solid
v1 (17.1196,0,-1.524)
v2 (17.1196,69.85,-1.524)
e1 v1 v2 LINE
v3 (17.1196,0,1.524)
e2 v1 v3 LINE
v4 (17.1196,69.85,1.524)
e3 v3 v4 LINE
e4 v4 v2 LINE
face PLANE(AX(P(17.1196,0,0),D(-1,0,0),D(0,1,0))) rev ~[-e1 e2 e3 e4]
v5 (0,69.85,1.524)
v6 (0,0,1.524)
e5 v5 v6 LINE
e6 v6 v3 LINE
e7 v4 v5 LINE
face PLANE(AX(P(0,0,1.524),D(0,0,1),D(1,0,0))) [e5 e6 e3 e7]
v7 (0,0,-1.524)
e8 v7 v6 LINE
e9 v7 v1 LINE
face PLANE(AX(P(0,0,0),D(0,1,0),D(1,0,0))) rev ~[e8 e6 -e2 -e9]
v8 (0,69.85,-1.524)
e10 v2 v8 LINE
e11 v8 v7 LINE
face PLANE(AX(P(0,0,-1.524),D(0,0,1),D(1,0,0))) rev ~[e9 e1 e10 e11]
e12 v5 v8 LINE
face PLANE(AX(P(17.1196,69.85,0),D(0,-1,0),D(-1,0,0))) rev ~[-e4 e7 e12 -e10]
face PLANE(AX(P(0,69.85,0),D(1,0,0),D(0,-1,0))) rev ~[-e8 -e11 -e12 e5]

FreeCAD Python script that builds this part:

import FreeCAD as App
import Part
import Sketcher

V = App.Vector
Q = App.Units.Quantity

doc = App.newDocument("Part")
params = doc.addObject("Spreadsheet::Sheet", "Params")
for row, (alias, value) in enumerate([
    ("sketch1_height", "2.75 in"),
    ("sketch1_width", "0.674 in"),
    ("pad1_length", "0.12 in"),
], start=1):
    params.set(f"A{row}", alias)
    params.set(f"B{row}", "=" + value)
    params.setAlias(f"B{row}", alias)

body = doc.addObject("PartDesign::Body", "Body")

# Sketch on XY plane
sketch1 = doc.addObject("Sketcher::SketchObject", "Sketch")
body.addObject(sketch1)
sketch1.AttachmentSupport = (doc.XY_Plane, [""])
sketch1.MapMode = "FlatFace"
sketch1.addGeometry([
    Part.LineSegment(V(0, 70, 0), V(0, 0, 0)),
    Part.LineSegment(V(0, 0, 0), V(17, 0, 0)),
    Part.LineSegment(V(17, 0, 0), V(17, 70, 0)),
    Part.LineSegment(V(17, 70, 0), V(0, 70, 0)),
], False)
sketch1.addConstraint([
    Sketcher.Constraint("Coincident", 0, 2, 1, 1),
    Sketcher.Constraint("Coincident", 1, 2, 2, 1),
    Sketcher.Constraint("Coincident", 2, 2, 3, 1),
    Sketcher.Constraint("Coincident", 3, 2, 0, 1),
    Sketcher.Constraint("Vertical", 0),
    Sketcher.Constraint("Horizontal", 1),
    Sketcher.Constraint("Vertical", 2),
    Sketcher.Constraint("Horizontal", 3),
    Sketcher.Constraint("Coincident", 0, 2, -1, 1),
    Sketcher.Constraint("DistanceY", 0, 2, 0, 1, Q("2.75 in")),
    Sketcher.Constraint("DistanceX", 1, 1, 1, 2, Q("0.674 in")),
])
sketch1.setExpression("Constraints[9]", "Params.sketch1_height")
sketch1.setExpression("Constraints[10]", "Params.sketch1_width")
pad1 = doc.addObject("PartDesign::Pad", "Pad")
body.addObject(pad1)
pad1.Profile = sketch1
pad1.setExpression("Length", "Params.pad1_length")
pad1.Midplane = True

doc.recompute()
